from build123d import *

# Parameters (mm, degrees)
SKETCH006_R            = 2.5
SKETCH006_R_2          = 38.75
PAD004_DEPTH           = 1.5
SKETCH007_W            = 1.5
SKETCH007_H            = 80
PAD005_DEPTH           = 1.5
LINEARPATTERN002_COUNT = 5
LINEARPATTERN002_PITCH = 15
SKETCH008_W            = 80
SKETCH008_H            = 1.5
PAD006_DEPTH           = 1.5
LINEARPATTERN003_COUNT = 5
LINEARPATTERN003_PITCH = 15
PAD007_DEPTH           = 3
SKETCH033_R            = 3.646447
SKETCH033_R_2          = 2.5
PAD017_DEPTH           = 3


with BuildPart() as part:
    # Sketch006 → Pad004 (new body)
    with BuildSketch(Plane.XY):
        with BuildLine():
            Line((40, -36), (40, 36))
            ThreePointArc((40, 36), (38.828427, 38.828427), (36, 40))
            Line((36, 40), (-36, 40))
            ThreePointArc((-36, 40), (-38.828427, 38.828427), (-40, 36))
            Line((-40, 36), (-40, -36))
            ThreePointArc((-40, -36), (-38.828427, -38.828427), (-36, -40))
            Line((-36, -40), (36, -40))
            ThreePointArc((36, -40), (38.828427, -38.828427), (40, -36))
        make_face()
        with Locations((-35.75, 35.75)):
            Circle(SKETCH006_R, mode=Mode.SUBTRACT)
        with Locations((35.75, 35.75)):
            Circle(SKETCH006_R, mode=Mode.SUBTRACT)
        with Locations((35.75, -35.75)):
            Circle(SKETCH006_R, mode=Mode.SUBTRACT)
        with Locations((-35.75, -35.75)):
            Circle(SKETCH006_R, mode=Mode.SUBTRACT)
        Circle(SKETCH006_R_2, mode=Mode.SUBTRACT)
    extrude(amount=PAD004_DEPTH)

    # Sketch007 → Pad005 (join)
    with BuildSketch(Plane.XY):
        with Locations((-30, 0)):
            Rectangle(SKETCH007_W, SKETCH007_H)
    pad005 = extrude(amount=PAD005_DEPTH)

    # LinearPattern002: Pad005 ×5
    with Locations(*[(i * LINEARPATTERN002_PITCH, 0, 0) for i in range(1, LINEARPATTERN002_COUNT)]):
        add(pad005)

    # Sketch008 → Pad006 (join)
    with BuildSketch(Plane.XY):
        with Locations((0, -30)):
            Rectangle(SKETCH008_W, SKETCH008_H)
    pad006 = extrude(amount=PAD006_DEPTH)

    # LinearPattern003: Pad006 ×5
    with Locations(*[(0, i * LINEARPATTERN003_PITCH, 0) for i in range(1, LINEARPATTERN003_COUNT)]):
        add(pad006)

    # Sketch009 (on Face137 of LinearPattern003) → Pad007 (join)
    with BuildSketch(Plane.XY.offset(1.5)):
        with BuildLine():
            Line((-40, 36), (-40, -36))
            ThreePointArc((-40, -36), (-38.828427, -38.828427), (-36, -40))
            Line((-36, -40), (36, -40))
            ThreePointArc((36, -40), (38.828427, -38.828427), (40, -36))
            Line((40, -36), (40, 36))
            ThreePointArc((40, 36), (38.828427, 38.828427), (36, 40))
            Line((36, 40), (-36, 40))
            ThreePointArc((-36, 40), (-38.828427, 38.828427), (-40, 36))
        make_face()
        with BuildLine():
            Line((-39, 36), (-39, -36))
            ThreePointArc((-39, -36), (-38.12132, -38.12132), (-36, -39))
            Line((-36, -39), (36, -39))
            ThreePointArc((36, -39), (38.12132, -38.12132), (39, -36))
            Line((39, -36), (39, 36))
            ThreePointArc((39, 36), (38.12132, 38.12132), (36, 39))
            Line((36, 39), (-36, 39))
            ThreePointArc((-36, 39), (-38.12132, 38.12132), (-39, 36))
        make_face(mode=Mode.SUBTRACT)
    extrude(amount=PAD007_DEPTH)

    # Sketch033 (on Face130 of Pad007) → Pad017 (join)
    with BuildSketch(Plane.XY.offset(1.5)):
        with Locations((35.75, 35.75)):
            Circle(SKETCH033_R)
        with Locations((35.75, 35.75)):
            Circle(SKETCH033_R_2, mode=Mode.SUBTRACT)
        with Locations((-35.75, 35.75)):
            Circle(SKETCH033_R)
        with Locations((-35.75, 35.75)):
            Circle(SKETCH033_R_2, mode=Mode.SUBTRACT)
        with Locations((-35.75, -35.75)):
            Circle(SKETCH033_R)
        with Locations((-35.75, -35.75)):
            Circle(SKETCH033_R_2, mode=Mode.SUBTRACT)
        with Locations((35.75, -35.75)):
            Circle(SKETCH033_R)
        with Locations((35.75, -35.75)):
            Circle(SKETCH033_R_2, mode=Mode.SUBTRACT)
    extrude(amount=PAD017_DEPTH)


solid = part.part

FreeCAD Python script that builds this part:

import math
import FreeCAD as App
import Part
import Sketcher
from FreeCAD import Vector
Q = App.Units.Quantity


def add_polygon(sketch, points):
    """Adds a closed chain of lines whose ends are joined by coincident constraints."""
    first, n = sketch.GeometryCount, len(points)
    for a, b in zip(points, points[1:] + points[:1]):
        sketch.addGeometry(Part.LineSegment(App.Vector(*a, 0), App.Vector(*b, 0)), False)
    for i in range(n):
        sketch.addConstraint(Sketcher.Constraint("Coincident", first + i, 2, first + (i + 1) % n, 1))

doc = App.newDocument("Part")
params = doc.addObject("Spreadsheet::Sheet", "Params")
for row, (alias, value) in enumerate([
    ("sketch1_diameter", "5 mm"),
    ("sketch1_radius", "4 mm"),
    ("sketch1_diameter2", "77.5 mm"),
    ("sketch1_width", "72 mm"),
    ("pad1_length", "1.5 mm"),
    ("sketch2_height", "80 mm"),
    ("sketch2_width", "1.5 mm"),
    ("pad2_length", "1.5 mm"),
    ("linearpattern_pitch", "15 mm"),
    ("sketch3_width", "80 mm"),
    ("sketch3_height", "1.5 mm"),
    ("pad3_length", "1.5 mm"),
    ("linearpattern2_pitch", "15 mm"),
    ("sketch4_radius", "4 mm"),
    ("sketch4_radius2", "3.000001 mm"),
    ("sketch4_width", "72 mm"),
    ("pad4_length", "3 mm"),
    ("sketch5_diameter", "5 mm"),
    ("pad5_length", "3 mm"),
], start=1):
    params.set(f"A{row}", alias)
    params.set(f"B{row}", "=" + value)
    params.setAlias(f"B{row}", alias)

body = doc.addObject("PartDesign::Body", "Body")

sketch1 = body.newObject("Sketcher::SketchObject", "Sketch")
sketch1.AttachmentSupport = (doc.getObject("XY_Plane"), [""])
sketch1.MapMode = "FlatFace"
sketch1.addGeometry(Part.LineSegment(Vector(40, -36, 0), Vector(40, 36, 0)), False)
sketch1.addGeometry(Part.ArcOfCircle(Part.Circle(Vector(36, 36, 0), Vector(0, 0, 1), 4), math.radians(0), math.radians(90)), False)
sketch1.addGeometry(Part.LineSegment(Vector(36, 40, 0), Vector(-36, 40, 0)), False)
sketch1.addGeometry(Part.ArcOfCircle(Part.Circle(Vector(-36, 36, 0), Vector(0, 0, 1), 4), math.radians(90), math.radians(180)), False)
sketch1.addGeometry(Part.LineSegment(Vector(-40, 36, 0), Vector(-40, -36, 0)), False)
sketch1.addGeometry(Part.ArcOfCircle(Part.Circle(Vector(-36, -36, 0), Vector(0, 0, 1), 4), math.radians(-180), math.radians(-90)), False)
sketch1.addGeometry(Part.LineSegment(Vector(-36, -40, 0), Vector(36, -40, 0)), False)
sketch1.addGeometry(Part.ArcOfCircle(Part.Circle(Vector(36, -36, 0), Vector(0, 0, 1), 4), math.radians(-90), math.radians(0)), False)
sketch1.addGeometry(Part.Circle(Vector(-35.8, -35.8, 0), Vector(0, 0, 1), 2.5), False)
sketch1.addGeometry(Part.Circle(Vector(35.8, -35.8, 0), Vector(0, 0, 1), 2.5), False)
sketch1.addGeometry(Part.Circle(Vector(-35.8, 35.8, 0), Vector(0, 0, 1), 2.5), False)
sketch1.addGeometry(Part.Circle(Vector(0, 0, 0), Vector(0, 0, 1), 38.8), False)
sketch1.addGeometry(Part.Circle(Vector(35.8, 35.8, 0), Vector(0, 0, 1), 2.5), False)
sketch1.addConstraint(Sketcher.Constraint("Tangent", 0, 2, 1, 1))
sketch1.addConstraint(Sketcher.Constraint("Tangent", 1, 2, 2, 1))
sketch1.addConstraint(Sketcher.Constraint("Tangent", 2, 2, 3, 1))
sketch1.addConstraint(Sketcher.Constraint("Tangent", 3, 2, 4, 1))
sketch1.addConstraint(Sketcher.Constraint("Tangent", 4, 2, 5, 1))
sketch1.addConstraint(Sketcher.Constraint("Tangent", 5, 2, 6, 1))
sketch1.addConstraint(Sketcher.Constraint("Tangent", 6, 2, 7, 1))
sketch1.addConstraint(Sketcher.Constraint("Tangent", 7, 2, 0, 1))
sketch1.addConstraint(Sketcher.Constraint("Vertical", 0))
sketch1.addConstraint(Sketcher.Constraint("Horizontal", 2))
sketch1.addConstraint(Sketcher.Constraint("Vertical", 4))
sketch1.addConstraint(Sketcher.Constraint("Horizontal", 6))
sketch1.addConstraint(Sketcher.Constraint("Coincident", 11, 3, -1, 1))
sketch1.addConstraint(Sketcher.Constraint("Equal", 1, 3))
sketch1.addConstraint(Sketcher.Constraint("Equal", 3, 5))
sketch1.addConstraint(Sketcher.Constraint("Equal", 5, 7))
sketch1.addConstraint(Sketcher.Constraint("Equal", 8, 9))
sketch1.addConstraint(Sketcher.Constraint("Equal", 9, 10))
sketch1.addConstraint(Sketcher.Constraint("Equal", 10, 12))
sketch1.addConstraint(Sketcher.Constraint("Symmetric", 1, 3, 5, 3, -1, 1))
sketch1.addConstraint(Sketcher.Constraint("Symmetric", 9, 3, 10, 3, -1, 1))
sketch1.addConstraint(Sketcher.Constraint("Symmetric", 8, 3, 12, 3, -1, 1))
sketch1.addConstraint(Sketcher.Constraint("Symmetric", 8, 3, 9, 3, -2))
sketch1.addConstraint(Sketcher.Constraint("Equal", 6, 0))
sketch1.addConstraint(Sketcher.Constraint("Diameter", 8, Q("5 mm")))
sketch1.addConstraint(Sketcher.Constraint("Radius", 1, Q("4 mm")))
sketch1.addConstraint(Sketcher.Constraint("Diameter", 11, Q("77.5 mm")))
sketch1.addConstraint(Sketcher.Constraint("DistanceX", 2, 2, 2, 1, Q("72 mm")))
sketch1.addConstraint(Sketcher.Constraint("DistanceX", 8, 3, 9, 3, Q("71.5 mm")))
sketch1.addConstraint(Sketcher.Constraint("DistanceY", 8, 3, 10, 3, Q("71.5 mm")))
sketch1.setExpression("Constraints[24]", "Params.sketch1_diameter")
sketch1.setExpression("Constraints[25]", "Params.sketch1_radius")
sketch1.setExpression("Constraints[26]", "Params.sketch1_diameter2")
sketch1.setExpression("Constraints[27]", "Params.sketch1_width")
pad1 = body.newObject("PartDesign::Pad", "Pad")
pad1.Profile = sketch1
pad1.setExpression("Length", "Params.pad1_length")

sketch2 = body.newObject("Sketcher::SketchObject", "Sketch001")
sketch2.AttachmentSupport = (doc.getObject("XY_Plane"), [""])
sketch2.MapMode = "FlatFace"
add_polygon(sketch2, [(-30.8, 40), (-30.8, -40), (-29.2, -40), (-29.2, 40)])
sketch2.addConstraint(Sketcher.Constraint("Vertical", 0))
sketch2.addConstraint(Sketcher.Constraint("Horizontal", 1))
sketch2.addConstraint(Sketcher.Constraint("Vertical", 2))
sketch2.addConstraint(Sketcher.Constraint("Horizontal", 3))
sketch2.addConstraint(Sketcher.Constraint("DistanceY", 0, 2, 0, 1, Q("80 mm")))
sketch2.addConstraint(Sketcher.Constraint("DistanceX", 1, 1, 1, 2, Q("1.5 mm")))
sketch2.addConstraint(Sketcher.Constraint("DistanceY", 0, 2, -1, 1, Q("40 mm")))
sketch2.addConstraint(Sketcher.Constraint("DistanceX", 0, 2, -1, 1, Q("30.75 mm")))
sketch2.setExpression("Constraints[8]", "Params.sketch2_height")
sketch2.setExpression("Constraints[9]", "Params.sketch2_width")
pad2 = body.newObject("PartDesign::Pad", "Pad001")
pad2.Profile = sketch2
pad2.setExpression("Length", "Params.pad2_length")
doc.recompute()

linearpattern = body.newObject("PartDesign::LinearPattern", "LinearPattern")
linearpattern.Originals = [pad2]
linearpattern.Direction = (doc.getObject("X_Axis"), [""])
linearpattern.Mode = "offset"
linearpattern.setExpression("Offset", "Params.linearpattern_pitch")
linearpattern.Occurrences = 5
body.Tip = linearpattern

sketch3 = body.newObject("Sketcher::SketchObject", "Sketch002")
sketch3.AttachmentSupport = (doc.getObject("XY_Plane"), [""])
sketch3.MapMode = "FlatFace"
add_polygon(sketch3, [(-40, -29.2), (-40, -30.8), (40, -30.8), (40, -29.2)])
sketch3.addConstraint(Sketcher.Constraint("Vertical", 0))
sketch3.addConstraint(Sketcher.Constraint("Horizontal", 1))
sketch3.addConstraint(Sketcher.Constraint("Vertical", 2))
sketch3.addConstraint(Sketcher.Constraint("Horizontal", 3))
sketch3.addConstraint(Sketcher.Constraint("DistanceX", 1, 1, 1, 2, Q("80 mm")))
sketch3.addConstraint(Sketcher.Constraint("DistanceY", 0, 2, 0, 1, Q("1.5 mm")))
sketch3.addConstraint(Sketcher.Constraint("DistanceX", 0, 2, -1, 1, Q("40 mm")))
sketch3.addConstraint(Sketcher.Constraint("DistanceY", 0, 2, -1, 1, Q("30.75 mm")))
sketch3.setExpression("Constraints[8]", "Params.sketch3_width")
sketch3.setExpression("Constraints[9]", "Params.sketch3_height")
pad3 = body.newObject("PartDesign::Pad", "Pad002")
pad3.Profile = sketch3
pad3.setExpression("Length", "Params.pad3_length")
doc.recompute()

linearpattern2 = body.newObject("PartDesign::LinearPattern", "LinearPattern001")
linearpattern2.Originals = [pad3]
linearpattern2.Direction = (doc.getObject("Y_Axis"), [""])
linearpattern2.Mode = "offset"
linearpattern2.setExpression("Offset", "Params.linearpattern2_pitch")
linearpattern2.Occurrences = 5
body.Tip = linearpattern2

sketch4 = body.newObject("Sketcher::SketchObject", "Sketch003")
sketch4.AttachmentSupport = (doc.getObject("XY_Plane"), [""])
sketch4.MapMode = "FlatFace"
sketch4.AttachmentOffset = App.Placement(Vector(0, 0, 1.5), App.Rotation())
sketch4.addGeometry(Part.LineSegment(Vector(-40, 36, 0), Vector(-40, -36, 0)), False)
sketch4.addGeometry(Part.ArcOfCircle(Part.Circle(Vector(-36, -36, 0), Vector(0, 0, 1), 4), math.radians(-180), math.radians(-90)), False)
sketch4.addGeometry(Part.LineSegment(Vector(-36, -40, 0), Vector(36, -40, 0)), False)
sketch4.addGeometry(Part.ArcOfCircle(Part.Circle(Vector(36, -36, 0), Vector(0, 0, 1), 4), math.radians(-90), math.radians(0)), False)
sketch4.addGeometry(Part.LineSegment(Vector(40, -36, 0), Vector(40, 36, 0)), False)
sketch4.addGeometry(Part.ArcOfCircle(Part.Circle(Vector(36, 36, 0), Vector(0, 0, 1), 4), math.radians(0), math.radians(90)), False)
sketch4.addGeometry(Part.LineSegment(Vector(36, 40, 0), Vector(-36, 40, 0)), False)
sketch4.addGeometry(Part.ArcOfCircle(Part.Circle(Vector(-36, 36, 0), Vector(0, 0, 1), 4), math.radians(90), math.radians(180)), False)
sketch4.addGeometry(Part.LineSegment(Vector(-39, -36, 0), Vector(-39, 36, 0)), False)
sketch4.addGeometry(Part.ArcOfCircle(Part.Circle(Vector(-36, 36, 0), Vector(0, 0, 1), 3), math.radians(90), math.radians(180)), False)
sketch4.addGeometry(Part.LineSegment(Vector(-36, 39, 0), Vector(36, 39, 0)), False)
sketch4.addGeometry(Part.ArcOfCircle(Part.Circle(Vector(36, 36, 0), Vector(0, 0, 1), 3), math.radians(0), math.radians(90)), False)
sketch4.addGeometry(Part.LineSegment(Vector(39, 36, 0), Vector(39, -36, 0)), False)
sketch4.addGeometry(Part.ArcOfCircle(Part.Circle(Vector(36, -36, 0), Vector(0, 0, 1), 3), math.radians(-90), math.radians(0)), False)
sketch4.addGeometry(Part.LineSegment(Vector(36, -39, 0), Vector(-36, -39, 0)), False)
sketch4.addGeometry(Part.ArcOfCircle(Part.Circle(Vector(-36, -36, 0), Vector(0, 0, 1), 3), math.radians(-180), math.radians(-90)), False)
sketch4.addConstraint(Sketcher.Constraint("Tangent", 0, 2, 1, 1))
sketch4.addConstraint(Sketcher.Constraint("Tangent", 1, 2, 2, 1))
sketch4.addConstraint(Sketcher.Constraint("Tangent", 2, 2, 3, 1))
sketch4.addConstraint(Sketcher.Constraint("Tangent", 3, 2, 4, 1))
sketch4.addConstraint(Sketcher.Constraint("Tangent", 4, 2, 5, 1))
sketch4.addConstraint(Sketcher.Constraint("Tangent", 5, 2, 6, 1))
sketch4.addConstraint(Sketcher.Constraint("Tangent", 6, 2, 7, 1))
sketch4.addConstraint(Sketcher.Constraint("Tangent", 7, 2, 0, 1))
sketch4.addConstraint(Sketcher.Constraint("Tangent", 8, 2, 9, 2))
sketch4.addConstraint(Sketcher.Constraint("Tangent", 9, 1, 10, 1))
sketch4.addConstraint(Sketcher.Constraint("Tangent", 10, 2, 11, 2))
sketch4.addConstraint(Sketcher.Constraint("Tangent", 11, 1, 12, 1))
sketch4.addConstraint(Sketcher.Constraint("Tangent", 12, 2, 13, 2))
sketch4.addConstraint(Sketcher.Constraint("Tangent", 13, 1, 14, 1))
sketch4.addConstraint(Sketcher.Constraint("Tangent", 14, 2, 15, 2))
sketch4.addConstraint(Sketcher.Constraint("Tangent", 15, 1, 8, 1))
sketch4.addConstraint(Sketcher.Constraint("Vertical", 0))
sketch4.addConstraint(Sketcher.Constraint("Horizontal", 2))
sketch4.addConstraint(Sketcher.Constraint("Vertical", 4))
sketch4.addConstraint(Sketcher.Constraint("Horizontal", 6))
sketch4.addConstraint(Sketcher.Constraint("Vertical", 8))
sketch4.addConstraint(Sketcher.Constraint("Horizontal", 10))
sketch4.addConstraint(Sketcher.Constraint("Vertical", 12))
sketch4.addConstraint(Sketcher.Constraint("Horizontal", 14))
sketch4.addConstraint(Sketcher.Constraint("Coincident", 9, 3, 7, 3))
sketch4.addConstraint(Sketcher.Constraint("Coincident", 11, 3, 5, 3))
sketch4.addConstraint(Sketcher.Constraint("Coincident", 13, 3, 3, 3))
sketch4.addConstraint(Sketcher.Constraint("Equal", 1, 3))
sketch4.addConstraint(Sketcher.Constraint("Equal", 3, 5))
sketch4.addConstraint(Sketcher.Constraint("Equal", 5, 7))
sketch4.addConstraint(Sketcher.Constraint("Equal", 13, 15))
sketch4.addConstraint(Sketcher.Constraint("Symmetric", 1, 3, 5, 3, -1, 1))
sketch4.addConstraint(Sketcher.Constraint("Equal", 14, 0))
sketch4.addConstraint(Sketcher.Constraint("Radius", 1, Q("4 mm")))
sketch4.addConstraint(Sketcher.Constraint("Radius", 9, Q("3.000001 mm")))
sketch4.addConstraint(Sketcher.Constraint("DistanceX", 2, 1, 2, 2, Q("72 mm")))
sketch4.setExpression("Constraints[33]", "Params.sketch4_radius")
sketch4.setExpression("Constraints[34]", "Params.sketch4_radius2")
sketch4.setExpression("Constraints[35]", "Params.sketch4_width")
pad4 = body.newObject("PartDesign::Pad", "Pad003")
pad4.Profile = sketch4
pad4.setExpression("Length", "Params.pad4_length")

sketch5 = body.newObject("Sketcher::SketchObject", "Sketch004")
sketch5.AttachmentSupport = (doc.getObject("XY_Plane"), [""])
sketch5.MapMode = "FlatFace"
sketch5.AttachmentOffset = App.Placement(Vector(0, 0, 1.5), App.Rotation())
sketch5.addGeometry(Part.Circle(Vector(35.8, 35.8, 0), Vector(0, 0, 1), 3.6), False)
sketch5.addGeometry(Part.Circle(Vector(35.8, 35.8, 0), Vector(0, 0, 1), 2.5), False)
sketch5.addGeometry(Part.Circle(Vector(-35.8, 35.8, 0), Vector(0, 0, 1), 3.6), False)
sketch5.addGeometry(Part.Circle(Vector(-35.8, 35.8, 0), Vector(0, 0, 1), 2.5), False)
sketch5.addGeometry(Part.Circle(Vector(-35.8, -35.8, 0), Vector(0, 0, 1), 3.6), False)
sketch5.addGeometry(Part.Circle(Vector(-35.8, -35.8, 0), Vector(0, 0, 1), 2.5), False)
sketch5.addGeometry(Part.Circle(Vector(35.8, -35.8, 0), Vector(0, 0, 1), 3.6), False)
sketch5.addGeometry(Part.Circle(Vector(35.8, -35.8, 0), Vector(0, 0, 1), 2.5), False)
sketch5.addConstraint(Sketcher.Constraint("Coincident", 1, 3, 0, 3))
sketch5.addConstraint(Sketcher.Constraint("Coincident", 3, 3, 2, 3))
sketch5.addConstraint(Sketcher.Constraint("Coincident", 5, 3, 4, 3))
sketch5.addConstraint(Sketcher.Constraint("Coincident", 7, 3, 6, 3))
sketch5.addConstraint(Sketcher.Constraint("Equal", 0, 2))
sketch5.addConstraint(Sketcher.Constraint("Equal", 1, 3))
sketch5.addConstraint(Sketcher.Constraint("Equal", 2, 4))
sketch5.addConstraint(Sketcher.Constraint("Equal", 3, 5))
sketch5.addConstraint(Sketcher.Constraint("Equal", 4, 6))
sketch5.addConstraint(Sketcher.Constraint("Equal", 5, 7))
sketch5.addConstraint(Sketcher.Constraint("Symmetric", 0, 3, 4, 3, -1, 1))
sketch5.addConstraint(Sketcher.Constraint("Symmetric", 2, 3, 6, 3, -1, 1))
sketch5.addConstraint(Sketcher.Constraint("Symmetric", 0, 3, 2, 3, -2))
sketch5.addConstraint(Sketcher.Constraint("Diameter", 1, Q("5 mm")))
sketch5.addConstraint(Sketcher.Constraint("DistanceX", 2, 3, 0, 3, Q("71.5 mm")))
sketch5.addConstraint(Sketcher.Constraint("DistanceY", 4, 3, 2, 3, Q("71.5 mm")))
sketch5.addConstraint(Sketcher.Constraint("Diameter", 0, Q("7.292894 mm")))
sketch5.setExpression("Constraints[13]", "Params.sketch5_diameter")
pad5 = body.newObject("PartDesign::Pad", "Pad004")
pad5.Profile = sketch5
pad5.setExpression("Length", "Params.pad5_length")

doc.recompute()
